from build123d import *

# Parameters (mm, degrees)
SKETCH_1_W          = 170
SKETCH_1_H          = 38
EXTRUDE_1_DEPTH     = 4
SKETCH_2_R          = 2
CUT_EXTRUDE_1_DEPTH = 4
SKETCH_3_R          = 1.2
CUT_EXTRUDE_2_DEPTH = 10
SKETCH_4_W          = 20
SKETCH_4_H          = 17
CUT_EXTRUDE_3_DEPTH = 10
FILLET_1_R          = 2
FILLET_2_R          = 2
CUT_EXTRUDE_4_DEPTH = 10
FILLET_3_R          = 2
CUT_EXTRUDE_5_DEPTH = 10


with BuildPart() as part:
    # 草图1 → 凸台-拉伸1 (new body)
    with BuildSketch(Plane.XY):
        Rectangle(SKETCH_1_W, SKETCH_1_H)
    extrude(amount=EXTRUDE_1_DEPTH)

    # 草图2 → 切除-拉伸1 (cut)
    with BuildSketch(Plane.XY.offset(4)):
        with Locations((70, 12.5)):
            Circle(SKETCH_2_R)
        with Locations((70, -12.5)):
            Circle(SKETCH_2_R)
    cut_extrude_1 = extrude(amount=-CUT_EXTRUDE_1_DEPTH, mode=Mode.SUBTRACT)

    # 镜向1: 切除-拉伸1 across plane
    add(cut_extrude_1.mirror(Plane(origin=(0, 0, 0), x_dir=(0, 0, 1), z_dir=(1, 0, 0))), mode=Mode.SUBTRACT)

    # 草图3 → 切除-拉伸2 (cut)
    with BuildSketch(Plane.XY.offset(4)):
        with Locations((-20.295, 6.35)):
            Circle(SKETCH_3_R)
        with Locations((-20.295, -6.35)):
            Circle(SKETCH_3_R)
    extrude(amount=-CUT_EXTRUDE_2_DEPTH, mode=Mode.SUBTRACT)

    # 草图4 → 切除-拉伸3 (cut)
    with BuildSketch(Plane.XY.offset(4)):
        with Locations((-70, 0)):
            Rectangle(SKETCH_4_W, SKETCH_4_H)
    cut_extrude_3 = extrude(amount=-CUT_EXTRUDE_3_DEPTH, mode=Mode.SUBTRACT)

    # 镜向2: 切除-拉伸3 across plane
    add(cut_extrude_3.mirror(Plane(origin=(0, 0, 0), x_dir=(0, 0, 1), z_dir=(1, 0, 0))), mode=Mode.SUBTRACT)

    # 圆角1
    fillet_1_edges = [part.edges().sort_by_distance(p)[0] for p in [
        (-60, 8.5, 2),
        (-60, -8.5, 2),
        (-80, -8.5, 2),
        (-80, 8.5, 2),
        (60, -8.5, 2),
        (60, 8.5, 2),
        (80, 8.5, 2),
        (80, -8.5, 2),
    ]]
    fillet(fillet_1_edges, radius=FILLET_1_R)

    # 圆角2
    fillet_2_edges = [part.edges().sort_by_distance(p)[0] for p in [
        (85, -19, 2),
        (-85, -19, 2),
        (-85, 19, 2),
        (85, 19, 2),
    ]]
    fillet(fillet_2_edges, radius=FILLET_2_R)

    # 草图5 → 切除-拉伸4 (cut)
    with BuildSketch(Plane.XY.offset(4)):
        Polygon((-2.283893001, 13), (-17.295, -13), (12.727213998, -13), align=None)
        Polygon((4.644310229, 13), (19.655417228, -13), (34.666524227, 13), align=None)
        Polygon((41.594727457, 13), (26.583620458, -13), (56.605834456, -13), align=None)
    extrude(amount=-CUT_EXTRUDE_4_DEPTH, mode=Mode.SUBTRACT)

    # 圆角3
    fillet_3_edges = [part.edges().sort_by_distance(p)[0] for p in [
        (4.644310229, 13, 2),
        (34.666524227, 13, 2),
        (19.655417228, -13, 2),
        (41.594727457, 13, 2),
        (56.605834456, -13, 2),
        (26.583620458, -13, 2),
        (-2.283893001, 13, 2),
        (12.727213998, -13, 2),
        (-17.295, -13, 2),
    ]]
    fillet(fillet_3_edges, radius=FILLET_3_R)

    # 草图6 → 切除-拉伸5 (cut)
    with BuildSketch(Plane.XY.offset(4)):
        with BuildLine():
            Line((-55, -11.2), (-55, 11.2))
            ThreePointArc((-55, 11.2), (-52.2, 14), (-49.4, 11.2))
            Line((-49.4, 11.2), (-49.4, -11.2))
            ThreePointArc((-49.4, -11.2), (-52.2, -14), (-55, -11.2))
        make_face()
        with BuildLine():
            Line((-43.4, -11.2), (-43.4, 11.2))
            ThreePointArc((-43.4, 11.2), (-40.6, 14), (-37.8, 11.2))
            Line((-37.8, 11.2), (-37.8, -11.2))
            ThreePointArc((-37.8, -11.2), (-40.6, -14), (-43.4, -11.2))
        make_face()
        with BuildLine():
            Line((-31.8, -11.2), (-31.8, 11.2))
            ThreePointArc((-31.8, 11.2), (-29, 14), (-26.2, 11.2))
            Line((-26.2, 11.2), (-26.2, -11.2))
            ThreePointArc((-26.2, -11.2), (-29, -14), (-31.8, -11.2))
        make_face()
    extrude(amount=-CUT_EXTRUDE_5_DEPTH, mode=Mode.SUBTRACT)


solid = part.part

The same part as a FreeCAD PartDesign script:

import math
import FreeCAD as App
import Part
import Sketcher
Q = App.Units.Quantity


def edges_at(feature, points):
    """Names of the edges that pass closest to the given points."""
    edges = feature.Shape.Edges
    near = lambda p: min(range(len(edges)), key=lambda i: edges[i].distToShape(Part.Vertex(*p))[0])
    return sorted({f"Edge{near(p) + 1}" for p in points})

doc = App.newDocument("Part")
body = doc.addObject("PartDesign::Body", "Body")

# Sketch on XY plane
sketch1 = body.newObject("Sketcher::SketchObject", "Sketch")
sketch1.AttachmentSupport = (doc.getObject("XY_Plane"), [""])
sketch1.MapMode = "FlatFace"
sketch1.addGeometry([
    Part.LineSegment(App.Vector(-85, 19, 0), App.Vector(-85, -19, 0)),
    Part.LineSegment(App.Vector(-85, -19, 0), App.Vector(85, -19, 0)),
    Part.LineSegment(App.Vector(85, -19, 0), App.Vector(85, 19, 0)),
    Part.LineSegment(App.Vector(85, 19, 0), App.Vector(-85, 19, 0)),
], False)
sketch1.addConstraint([
    Sketcher.Constraint("Coincident", 0, 2, 1, 1),
    Sketcher.Constraint("Coincident", 1, 2, 2, 1),
    Sketcher.Constraint("Coincident", 2, 2, 3, 1),
    Sketcher.Constraint("Coincident", 3, 2, 0, 1),
    Sketcher.Constraint("Vertical", 0),
    Sketcher.Constraint("Horizontal", 1),
    Sketcher.Constraint("Vertical", 2),
    Sketcher.Constraint("Horizontal", 3),
    Sketcher.Constraint("Symmetric", 0, 2, 2, 2, -1, 1),
    Sketcher.Constraint("DistanceX", 1, 1, 1, 2, 170.0),
    Sketcher.Constraint("DistanceY", 0, 2, 0, 1, 38.0),
])
pad1 = body.newObject("PartDesign::Pad", "Pad")
pad1.Profile = sketch1
pad1.Length = 4

# Sketch on XY plane
sketch2 = body.newObject("Sketcher::SketchObject", "Sketch001")
sketch2.AttachmentSupport = (doc.getObject("XY_Plane"), [""])
sketch2.MapMode = "FlatFace"
sketch2.AttachmentOffset = App.Placement(App.Vector(0, 0, 4), App.Rotation())
sketch2.addGeometry([
    Part.Circle(App.Vector(70, 12.5, 0), App.Vector(0, 0, 1), 2),
    Part.Circle(App.Vector(70, -12.5, 0), App.Vector(0, 0, 1), 2),
], False)
sketch2.addConstraint([
    Sketcher.Constraint("Equal", 0, 1),
    Sketcher.Constraint("Symmetric", 0, 3, 1, 3, -1),
    Sketcher.Constraint("Diameter", 0, 4.0),
    Sketcher.Constraint("DistanceX", -1, 1, 0, 3, 70.0),
    Sketcher.Constraint("DistanceY", 1, 3, 0, 3, 25.0),
])
pocket1 = body.newObject("PartDesign::Pocket", "Pocket")
pocket1.Profile = sketch2
pocket1.Length = 4
doc.recompute()

mirrored = body.newObject("PartDesign::Mirrored", "Mirrored")
mirrored.Originals = [pocket1]
mirrored.MirrorPlane = (doc.getObject("YZ_Plane"), [""])
body.Tip = mirrored

# Sketch on XY plane
sketch3 = body.newObject("Sketcher::SketchObject", "Sketch002")
sketch3.AttachmentSupport = (doc.getObject("XY_Plane"), [""])
sketch3.MapMode = "FlatFace"
sketch3.AttachmentOffset = App.Placement(App.Vector(0, 0, 4), App.Rotation())
sketch3.addGeometry([
    Part.Circle(App.Vector(-20.3, 6.3, 0), App.Vector(0, 0, 1), 1.2),
    Part.Circle(App.Vector(-20.3, -6.3, 0), App.Vector(0, 0, 1), 1.2),
], False)
sketch3.addConstraint([
    Sketcher.Constraint("Equal", 0, 1),
    Sketcher.Constraint("Symmetric", 0, 3, 1, 3, -1),
    Sketcher.Constraint("Diameter", 0, 2.4),
    Sketcher.Constraint("DistanceY", 1, 3, 0, 3, 12.7),
    Sketcher.Constraint("DistanceX", 0, 3, -1, 1, 20.295),
])
pocket2 = body.newObject("PartDesign::Pocket", "Pocket001")
pocket2.Profile = sketch3
pocket2.Length = 10

# Sketch on XY plane
sketch4 = body.newObject("Sketcher::SketchObject", "Sketch003")
sketch4.AttachmentSupport = (doc.getObject("XY_Plane"), [""])
sketch4.MapMode = "FlatFace"
sketch4.AttachmentOffset = App.Placement(App.Vector(0, 0, 4), App.Rotation())
sketch4.addGeometry([
    Part.LineSegment(App.Vector(-80, 8, 0), App.Vector(-80, -8, 0)),
    Part.LineSegment(App.Vector(-80, -8, 0), App.Vector(-60, -8, 0)),
    Part.LineSegment(App.Vector(-60, -8, 0), App.Vector(-60, 8, 0)),
    Part.LineSegment(App.Vector(-60, 8, 0), App.Vector(-80, 8, 0)),
], False)
sketch4.addConstraint([
    Sketcher.Constraint("Coincident", 0, 2, 1, 1),
    Sketcher.Constraint("Coincident", 1, 2, 2, 1),
    Sketcher.Constraint("Coincident", 2, 2, 3, 1),
    Sketcher.Constraint("Coincident", 3, 2, 0, 1),
    Sketcher.Constraint("Vertical", 0),
    Sketcher.Constraint("Horizontal", 1),
    Sketcher.Constraint("Vertical", 2),
    Sketcher.Constraint("Horizontal", 3),
    Sketcher.Constraint("DistanceX", 1, 1, 1, 2, 20.0),
    Sketcher.Constraint("DistanceY", 0, 2, 0, 1, 17.0),
    Sketcher.Constraint("DistanceX", 0, 2, -1, 1, 80.0),
    Sketcher.Constraint("DistanceY", 0, 2, -1, 1, 8.5),
])
pocket3 = body.newObject("PartDesign::Pocket", "Pocket002")
pocket3.Profile = sketch4
pocket3.Length = 10
doc.recompute()

mirrored2 = body.newObject("PartDesign::Mirrored", "Mirrored001")
mirrored2.Originals = [pocket3]
mirrored2.MirrorPlane = (doc.getObject("YZ_Plane"), [""])
body.Tip = mirrored2
doc.recompute()

fillet = body.newObject("PartDesign::Fillet", "Fillet")
fillet.Base = (mirrored2, edges_at(mirrored2, [
    (-60, 8.5, 2),
    (-60, -8.5, 2),
    (-80, -8.5, 2),
    (-80, 8.5, 2),
    (60, -8.5, 2),
    (60, 8.5, 2),
    (80, 8.5, 2),
    (80, -8.5, 2),
]))
fillet.Radius = 2
doc.recompute()

fillet2 = body.newObject("PartDesign::Fillet", "Fillet001")
fillet2.Base = (fillet, edges_at(fillet, [
    (85, -19, 2),
    (-85, -19, 2),
    (-85, 19, 2),
    (85, 19, 2),
]))
fillet2.Radius = 2

# Sketch on XY plane
sketch5 = body.newObject("Sketcher::SketchObject", "Sketch004")
sketch5.AttachmentSupport = (doc.getObject("XY_Plane"), [""])
sketch5.MapMode = "FlatFace"
sketch5.AttachmentOffset = App.Placement(App.Vector(0, 0, 4), App.Rotation())
sketch5.addGeometry([
    Part.LineSegment(App.Vector(-2, 13, 0), App.Vector(-17, -13, 0)),  # 0
    Part.LineSegment(App.Vector(-17, -13, 0), App.Vector(13, -13, 0)),  # 1
    Part.LineSegment(App.Vector(13, -13, 0), App.Vector(-2, 13, 0)),  # 2
    Part.LineSegment(App.Vector(5, 13, 0), App.Vector(20, -13, 0)),  # 3
    Part.LineSegment(App.Vector(20, -13, 0), App.Vector(35, 13, 0)),  # 4
    Part.LineSegment(App.Vector(35, 13, 0), App.Vector(5, 13, 0)),  # 5
    Part.LineSegment(App.Vector(42, 13, 0), App.Vector(27, -13, 0)),  # 6
    Part.LineSegment(App.Vector(27, -13, 0), App.Vector(57, -13, 0)),  # 7
    Part.LineSegment(App.Vector(57, -13, 0), App.Vector(42, 13, 0)),  # 8
], False)
sketch5.addConstraint([
    Sketcher.Constraint("Coincident", 0, 2, 1, 1),
    Sketcher.Constraint("Coincident", 1, 2, 2, 1),
    Sketcher.Constraint("Coincident", 2, 2, 0, 1),
    Sketcher.Constraint("Coincident", 3, 2, 4, 1),
    Sketcher.Constraint("Coincident", 4, 2, 5, 1),
    Sketcher.Constraint("Coincident", 5, 2, 3, 1),
    Sketcher.Constraint("Coincident", 6, 2, 7, 1),
    Sketcher.Constraint("Coincident", 7, 2, 8, 1),
    Sketcher.Constraint("Coincident", 8, 2, 6, 1),
    Sketcher.Constraint("Horizontal", 1),
    Sketcher.Constraint("Horizontal", 5),
    Sketcher.Constraint("Horizontal", 7),
    Sketcher.Constraint("Parallel", 2, 3),
    Sketcher.Constraint("Parallel", 0, 4),
    Sketcher.Constraint("Parallel", 4, 6),
    Sketcher.Constraint("Parallel", 3, 8),
    Sketcher.Constraint("Horizontal", 1, 2, 3, 2),
    Sketcher.Constraint("Horizontal", 2, 2, 4, 2),
    Sketcher.Constraint("Horizontal", 3, 2, 6, 2),
    Sketcher.Constraint("Horizontal", 5, 2, 8, 2),
    Sketcher.Constraint("Equal", 0, 2),
    Sketcher.Constraint("Angle", 0, Q("-120 deg")),
    Sketcher.Constraint("DistanceY", 0, 2, -1, 1, 13.0),
    Sketcher.Constraint("DistanceY", -1, 1, 2, 2, 13.0),
    Sketcher.Constraint("DistanceX", 0, 2, -1, 1, 17.295),
    Sketcher.Constraint("DistanceX", -1, 1, 5, 2, 4.64431),
    Sketcher.Constraint("DistanceX", -1, 1, 6, 2, 26.58362),
])
pocket4 = body.newObject("PartDesign::Pocket", "Pocket003")
pocket4.Profile = sketch5
pocket4.Length = 10
doc.recompute()

fillet3 = body.newObject("PartDesign::Fillet", "Fillet002")
fillet3.Base = (pocket4, edges_at(pocket4, [
    (4.644, 13, 2),
    (34.667, 13, 2),
    (19.655, -13, 2),
    (41.595, 13, 2),
    (56.606, -13, 2),
    (26.584, -13, 2),
    (-2.284, 13, 2),
    (12.727, -13, 2),
    (-17.295, -13, 2),
]))
fillet3.Radius = 2

# Sketch on XY plane
sketch6 = body.newObject("Sketcher::SketchObject", "Sketch005")
sketch6.AttachmentSupport = (doc.getObject("XY_Plane"), [""])
sketch6.MapMode = "FlatFace"
sketch6.AttachmentOffset = App.Placement(App.Vector(0, 0, 4), App.Rotation())
sketch6.addGeometry([
    Part.LineSegment(App.Vector(-55, 11.2, 0), App.Vector(-55, -11.2, 0)),  # 0
    Part.ArcOfCircle(Part.Circle(App.Vector(-52.2, -11.2, 0), App.Vector(0, 0, 1), 2.8), math.radians(180), math.radians(360)),  # 1
    Part.LineSegment(App.Vector(-49.4, -11.2, 0), App.Vector(-49.4, 11.2, 0)),  # 2
    Part.ArcOfCircle(Part.Circle(App.Vector(-52.2, 11.2, 0), App.Vector(0, 0, 1), 2.8), math.radians(0), math.radians(180)),  # 3
    Part.LineSegment(App.Vector(-43.4, 11.2, 0), App.Vector(-43.4, -11.2, 0)),  # 4
    Part.ArcOfCircle(Part.Circle(App.Vector(-40.6, -11.2, 0), App.Vector(0, 0, 1), 2.8), math.radians(180), math.radians(360)),  # 5
    Part.LineSegment(App.Vector(-37.8, -11.2, 0), App.Vector(-37.8, 11.2, 0)),  # 6
    Part.ArcOfCircle(Part.Circle(App.Vector(-40.6, 11.2, 0), App.Vector(0, 0, 1), 2.8), math.radians(0), math.radians(180)),  # 7
    Part.LineSegment(App.Vector(-31.8, 11.2, 0), App.Vector(-31.8, -11.2, 0)),  # 8
    Part.ArcOfCircle(Part.Circle(App.Vector(-29, -11.2, 0), App.Vector(0, 0, 1), 2.8), math.radians(180), math.radians(360)),  # 9
    Part.LineSegment(App.Vector(-26.2, -11.2, 0), App.Vector(-26.2, 11.2, 0)),  # 10
    Part.ArcOfCircle(Part.Circle(App.Vector(-29, 11.2, 0), App.Vector(0, 0, 1), 2.8), math.radians(0), math.radians(180)),  # 11
], False)
sketch6.addConstraint([
    Sketcher.Constraint("Tangent", 0, 2, 1, 1),
    Sketcher.Constraint("Tangent", 1, 2, 2, 1),
    Sketcher.Constraint("Tangent", 2, 2, 3, 1),
    Sketcher.Constraint("Tangent", 3, 2, 0, 1),
    Sketcher.Constraint("Tangent", 4, 2, 5, 1),
    Sketcher.Constraint("Tangent", 5, 2, 6, 1),
    Sketcher.Constraint("Tangent", 6, 2, 7, 1),
    Sketcher.Constraint("Tangent", 7, 2, 4, 1),
    Sketcher.Constraint("Tangent", 8, 2, 9, 1),
    Sketcher.Constraint("Tangent", 9, 2, 10, 1),
    Sketcher.Constraint("Tangent", 10, 2, 11, 1),
    Sketcher.Constraint("Tangent", 11, 2, 8, 1),
    Sketcher.Constraint("Vertical", 0),
    Sketcher.Constraint("Vertical", 2),
    Sketcher.Constraint("Vertical", 4),
    Sketcher.Constraint("Vertical", 6),
    Sketcher.Constraint("Vertical", 8),
    Sketcher.Constraint("Vertical", 10),
    Sketcher.Constraint("Equal", 3, 5),
    Sketcher.Constraint("Equal", 7, 9),
    Sketcher.Constraint("Horizontal", 1, 3, 5, 3),
    Sketcher.Constraint("Horizontal", 3, 3, 7, 3),
    Sketcher.Constraint("Horizontal", 5, 3, 9, 3),
    Sketcher.Constraint("Horizontal", 7, 3, 11, 3),
    Sketcher.Constraint("Radius", 1, 2.8),
    Sketcher.Constraint("DistanceY", 0, 2, 0, 1, 22.4),
    Sketcher.Constraint("DistanceX", 9, 3, -1, 1, 29.0),
    Sketcher.Constraint("DistanceX", 0, 2, -1, 1, 55.0),
    Sketcher.Constraint("DistanceX", 1, 2, 4, 2, 6.0),
    Sketcher.Constraint("DistanceY", 1, 3, -1, 1, 11.2),
])
pocket5 = body.newObject("PartDesign::Pocket", "Pocket004")
pocket5.Profile = sketch6
pocket5.Length = 10

doc.recompute()
